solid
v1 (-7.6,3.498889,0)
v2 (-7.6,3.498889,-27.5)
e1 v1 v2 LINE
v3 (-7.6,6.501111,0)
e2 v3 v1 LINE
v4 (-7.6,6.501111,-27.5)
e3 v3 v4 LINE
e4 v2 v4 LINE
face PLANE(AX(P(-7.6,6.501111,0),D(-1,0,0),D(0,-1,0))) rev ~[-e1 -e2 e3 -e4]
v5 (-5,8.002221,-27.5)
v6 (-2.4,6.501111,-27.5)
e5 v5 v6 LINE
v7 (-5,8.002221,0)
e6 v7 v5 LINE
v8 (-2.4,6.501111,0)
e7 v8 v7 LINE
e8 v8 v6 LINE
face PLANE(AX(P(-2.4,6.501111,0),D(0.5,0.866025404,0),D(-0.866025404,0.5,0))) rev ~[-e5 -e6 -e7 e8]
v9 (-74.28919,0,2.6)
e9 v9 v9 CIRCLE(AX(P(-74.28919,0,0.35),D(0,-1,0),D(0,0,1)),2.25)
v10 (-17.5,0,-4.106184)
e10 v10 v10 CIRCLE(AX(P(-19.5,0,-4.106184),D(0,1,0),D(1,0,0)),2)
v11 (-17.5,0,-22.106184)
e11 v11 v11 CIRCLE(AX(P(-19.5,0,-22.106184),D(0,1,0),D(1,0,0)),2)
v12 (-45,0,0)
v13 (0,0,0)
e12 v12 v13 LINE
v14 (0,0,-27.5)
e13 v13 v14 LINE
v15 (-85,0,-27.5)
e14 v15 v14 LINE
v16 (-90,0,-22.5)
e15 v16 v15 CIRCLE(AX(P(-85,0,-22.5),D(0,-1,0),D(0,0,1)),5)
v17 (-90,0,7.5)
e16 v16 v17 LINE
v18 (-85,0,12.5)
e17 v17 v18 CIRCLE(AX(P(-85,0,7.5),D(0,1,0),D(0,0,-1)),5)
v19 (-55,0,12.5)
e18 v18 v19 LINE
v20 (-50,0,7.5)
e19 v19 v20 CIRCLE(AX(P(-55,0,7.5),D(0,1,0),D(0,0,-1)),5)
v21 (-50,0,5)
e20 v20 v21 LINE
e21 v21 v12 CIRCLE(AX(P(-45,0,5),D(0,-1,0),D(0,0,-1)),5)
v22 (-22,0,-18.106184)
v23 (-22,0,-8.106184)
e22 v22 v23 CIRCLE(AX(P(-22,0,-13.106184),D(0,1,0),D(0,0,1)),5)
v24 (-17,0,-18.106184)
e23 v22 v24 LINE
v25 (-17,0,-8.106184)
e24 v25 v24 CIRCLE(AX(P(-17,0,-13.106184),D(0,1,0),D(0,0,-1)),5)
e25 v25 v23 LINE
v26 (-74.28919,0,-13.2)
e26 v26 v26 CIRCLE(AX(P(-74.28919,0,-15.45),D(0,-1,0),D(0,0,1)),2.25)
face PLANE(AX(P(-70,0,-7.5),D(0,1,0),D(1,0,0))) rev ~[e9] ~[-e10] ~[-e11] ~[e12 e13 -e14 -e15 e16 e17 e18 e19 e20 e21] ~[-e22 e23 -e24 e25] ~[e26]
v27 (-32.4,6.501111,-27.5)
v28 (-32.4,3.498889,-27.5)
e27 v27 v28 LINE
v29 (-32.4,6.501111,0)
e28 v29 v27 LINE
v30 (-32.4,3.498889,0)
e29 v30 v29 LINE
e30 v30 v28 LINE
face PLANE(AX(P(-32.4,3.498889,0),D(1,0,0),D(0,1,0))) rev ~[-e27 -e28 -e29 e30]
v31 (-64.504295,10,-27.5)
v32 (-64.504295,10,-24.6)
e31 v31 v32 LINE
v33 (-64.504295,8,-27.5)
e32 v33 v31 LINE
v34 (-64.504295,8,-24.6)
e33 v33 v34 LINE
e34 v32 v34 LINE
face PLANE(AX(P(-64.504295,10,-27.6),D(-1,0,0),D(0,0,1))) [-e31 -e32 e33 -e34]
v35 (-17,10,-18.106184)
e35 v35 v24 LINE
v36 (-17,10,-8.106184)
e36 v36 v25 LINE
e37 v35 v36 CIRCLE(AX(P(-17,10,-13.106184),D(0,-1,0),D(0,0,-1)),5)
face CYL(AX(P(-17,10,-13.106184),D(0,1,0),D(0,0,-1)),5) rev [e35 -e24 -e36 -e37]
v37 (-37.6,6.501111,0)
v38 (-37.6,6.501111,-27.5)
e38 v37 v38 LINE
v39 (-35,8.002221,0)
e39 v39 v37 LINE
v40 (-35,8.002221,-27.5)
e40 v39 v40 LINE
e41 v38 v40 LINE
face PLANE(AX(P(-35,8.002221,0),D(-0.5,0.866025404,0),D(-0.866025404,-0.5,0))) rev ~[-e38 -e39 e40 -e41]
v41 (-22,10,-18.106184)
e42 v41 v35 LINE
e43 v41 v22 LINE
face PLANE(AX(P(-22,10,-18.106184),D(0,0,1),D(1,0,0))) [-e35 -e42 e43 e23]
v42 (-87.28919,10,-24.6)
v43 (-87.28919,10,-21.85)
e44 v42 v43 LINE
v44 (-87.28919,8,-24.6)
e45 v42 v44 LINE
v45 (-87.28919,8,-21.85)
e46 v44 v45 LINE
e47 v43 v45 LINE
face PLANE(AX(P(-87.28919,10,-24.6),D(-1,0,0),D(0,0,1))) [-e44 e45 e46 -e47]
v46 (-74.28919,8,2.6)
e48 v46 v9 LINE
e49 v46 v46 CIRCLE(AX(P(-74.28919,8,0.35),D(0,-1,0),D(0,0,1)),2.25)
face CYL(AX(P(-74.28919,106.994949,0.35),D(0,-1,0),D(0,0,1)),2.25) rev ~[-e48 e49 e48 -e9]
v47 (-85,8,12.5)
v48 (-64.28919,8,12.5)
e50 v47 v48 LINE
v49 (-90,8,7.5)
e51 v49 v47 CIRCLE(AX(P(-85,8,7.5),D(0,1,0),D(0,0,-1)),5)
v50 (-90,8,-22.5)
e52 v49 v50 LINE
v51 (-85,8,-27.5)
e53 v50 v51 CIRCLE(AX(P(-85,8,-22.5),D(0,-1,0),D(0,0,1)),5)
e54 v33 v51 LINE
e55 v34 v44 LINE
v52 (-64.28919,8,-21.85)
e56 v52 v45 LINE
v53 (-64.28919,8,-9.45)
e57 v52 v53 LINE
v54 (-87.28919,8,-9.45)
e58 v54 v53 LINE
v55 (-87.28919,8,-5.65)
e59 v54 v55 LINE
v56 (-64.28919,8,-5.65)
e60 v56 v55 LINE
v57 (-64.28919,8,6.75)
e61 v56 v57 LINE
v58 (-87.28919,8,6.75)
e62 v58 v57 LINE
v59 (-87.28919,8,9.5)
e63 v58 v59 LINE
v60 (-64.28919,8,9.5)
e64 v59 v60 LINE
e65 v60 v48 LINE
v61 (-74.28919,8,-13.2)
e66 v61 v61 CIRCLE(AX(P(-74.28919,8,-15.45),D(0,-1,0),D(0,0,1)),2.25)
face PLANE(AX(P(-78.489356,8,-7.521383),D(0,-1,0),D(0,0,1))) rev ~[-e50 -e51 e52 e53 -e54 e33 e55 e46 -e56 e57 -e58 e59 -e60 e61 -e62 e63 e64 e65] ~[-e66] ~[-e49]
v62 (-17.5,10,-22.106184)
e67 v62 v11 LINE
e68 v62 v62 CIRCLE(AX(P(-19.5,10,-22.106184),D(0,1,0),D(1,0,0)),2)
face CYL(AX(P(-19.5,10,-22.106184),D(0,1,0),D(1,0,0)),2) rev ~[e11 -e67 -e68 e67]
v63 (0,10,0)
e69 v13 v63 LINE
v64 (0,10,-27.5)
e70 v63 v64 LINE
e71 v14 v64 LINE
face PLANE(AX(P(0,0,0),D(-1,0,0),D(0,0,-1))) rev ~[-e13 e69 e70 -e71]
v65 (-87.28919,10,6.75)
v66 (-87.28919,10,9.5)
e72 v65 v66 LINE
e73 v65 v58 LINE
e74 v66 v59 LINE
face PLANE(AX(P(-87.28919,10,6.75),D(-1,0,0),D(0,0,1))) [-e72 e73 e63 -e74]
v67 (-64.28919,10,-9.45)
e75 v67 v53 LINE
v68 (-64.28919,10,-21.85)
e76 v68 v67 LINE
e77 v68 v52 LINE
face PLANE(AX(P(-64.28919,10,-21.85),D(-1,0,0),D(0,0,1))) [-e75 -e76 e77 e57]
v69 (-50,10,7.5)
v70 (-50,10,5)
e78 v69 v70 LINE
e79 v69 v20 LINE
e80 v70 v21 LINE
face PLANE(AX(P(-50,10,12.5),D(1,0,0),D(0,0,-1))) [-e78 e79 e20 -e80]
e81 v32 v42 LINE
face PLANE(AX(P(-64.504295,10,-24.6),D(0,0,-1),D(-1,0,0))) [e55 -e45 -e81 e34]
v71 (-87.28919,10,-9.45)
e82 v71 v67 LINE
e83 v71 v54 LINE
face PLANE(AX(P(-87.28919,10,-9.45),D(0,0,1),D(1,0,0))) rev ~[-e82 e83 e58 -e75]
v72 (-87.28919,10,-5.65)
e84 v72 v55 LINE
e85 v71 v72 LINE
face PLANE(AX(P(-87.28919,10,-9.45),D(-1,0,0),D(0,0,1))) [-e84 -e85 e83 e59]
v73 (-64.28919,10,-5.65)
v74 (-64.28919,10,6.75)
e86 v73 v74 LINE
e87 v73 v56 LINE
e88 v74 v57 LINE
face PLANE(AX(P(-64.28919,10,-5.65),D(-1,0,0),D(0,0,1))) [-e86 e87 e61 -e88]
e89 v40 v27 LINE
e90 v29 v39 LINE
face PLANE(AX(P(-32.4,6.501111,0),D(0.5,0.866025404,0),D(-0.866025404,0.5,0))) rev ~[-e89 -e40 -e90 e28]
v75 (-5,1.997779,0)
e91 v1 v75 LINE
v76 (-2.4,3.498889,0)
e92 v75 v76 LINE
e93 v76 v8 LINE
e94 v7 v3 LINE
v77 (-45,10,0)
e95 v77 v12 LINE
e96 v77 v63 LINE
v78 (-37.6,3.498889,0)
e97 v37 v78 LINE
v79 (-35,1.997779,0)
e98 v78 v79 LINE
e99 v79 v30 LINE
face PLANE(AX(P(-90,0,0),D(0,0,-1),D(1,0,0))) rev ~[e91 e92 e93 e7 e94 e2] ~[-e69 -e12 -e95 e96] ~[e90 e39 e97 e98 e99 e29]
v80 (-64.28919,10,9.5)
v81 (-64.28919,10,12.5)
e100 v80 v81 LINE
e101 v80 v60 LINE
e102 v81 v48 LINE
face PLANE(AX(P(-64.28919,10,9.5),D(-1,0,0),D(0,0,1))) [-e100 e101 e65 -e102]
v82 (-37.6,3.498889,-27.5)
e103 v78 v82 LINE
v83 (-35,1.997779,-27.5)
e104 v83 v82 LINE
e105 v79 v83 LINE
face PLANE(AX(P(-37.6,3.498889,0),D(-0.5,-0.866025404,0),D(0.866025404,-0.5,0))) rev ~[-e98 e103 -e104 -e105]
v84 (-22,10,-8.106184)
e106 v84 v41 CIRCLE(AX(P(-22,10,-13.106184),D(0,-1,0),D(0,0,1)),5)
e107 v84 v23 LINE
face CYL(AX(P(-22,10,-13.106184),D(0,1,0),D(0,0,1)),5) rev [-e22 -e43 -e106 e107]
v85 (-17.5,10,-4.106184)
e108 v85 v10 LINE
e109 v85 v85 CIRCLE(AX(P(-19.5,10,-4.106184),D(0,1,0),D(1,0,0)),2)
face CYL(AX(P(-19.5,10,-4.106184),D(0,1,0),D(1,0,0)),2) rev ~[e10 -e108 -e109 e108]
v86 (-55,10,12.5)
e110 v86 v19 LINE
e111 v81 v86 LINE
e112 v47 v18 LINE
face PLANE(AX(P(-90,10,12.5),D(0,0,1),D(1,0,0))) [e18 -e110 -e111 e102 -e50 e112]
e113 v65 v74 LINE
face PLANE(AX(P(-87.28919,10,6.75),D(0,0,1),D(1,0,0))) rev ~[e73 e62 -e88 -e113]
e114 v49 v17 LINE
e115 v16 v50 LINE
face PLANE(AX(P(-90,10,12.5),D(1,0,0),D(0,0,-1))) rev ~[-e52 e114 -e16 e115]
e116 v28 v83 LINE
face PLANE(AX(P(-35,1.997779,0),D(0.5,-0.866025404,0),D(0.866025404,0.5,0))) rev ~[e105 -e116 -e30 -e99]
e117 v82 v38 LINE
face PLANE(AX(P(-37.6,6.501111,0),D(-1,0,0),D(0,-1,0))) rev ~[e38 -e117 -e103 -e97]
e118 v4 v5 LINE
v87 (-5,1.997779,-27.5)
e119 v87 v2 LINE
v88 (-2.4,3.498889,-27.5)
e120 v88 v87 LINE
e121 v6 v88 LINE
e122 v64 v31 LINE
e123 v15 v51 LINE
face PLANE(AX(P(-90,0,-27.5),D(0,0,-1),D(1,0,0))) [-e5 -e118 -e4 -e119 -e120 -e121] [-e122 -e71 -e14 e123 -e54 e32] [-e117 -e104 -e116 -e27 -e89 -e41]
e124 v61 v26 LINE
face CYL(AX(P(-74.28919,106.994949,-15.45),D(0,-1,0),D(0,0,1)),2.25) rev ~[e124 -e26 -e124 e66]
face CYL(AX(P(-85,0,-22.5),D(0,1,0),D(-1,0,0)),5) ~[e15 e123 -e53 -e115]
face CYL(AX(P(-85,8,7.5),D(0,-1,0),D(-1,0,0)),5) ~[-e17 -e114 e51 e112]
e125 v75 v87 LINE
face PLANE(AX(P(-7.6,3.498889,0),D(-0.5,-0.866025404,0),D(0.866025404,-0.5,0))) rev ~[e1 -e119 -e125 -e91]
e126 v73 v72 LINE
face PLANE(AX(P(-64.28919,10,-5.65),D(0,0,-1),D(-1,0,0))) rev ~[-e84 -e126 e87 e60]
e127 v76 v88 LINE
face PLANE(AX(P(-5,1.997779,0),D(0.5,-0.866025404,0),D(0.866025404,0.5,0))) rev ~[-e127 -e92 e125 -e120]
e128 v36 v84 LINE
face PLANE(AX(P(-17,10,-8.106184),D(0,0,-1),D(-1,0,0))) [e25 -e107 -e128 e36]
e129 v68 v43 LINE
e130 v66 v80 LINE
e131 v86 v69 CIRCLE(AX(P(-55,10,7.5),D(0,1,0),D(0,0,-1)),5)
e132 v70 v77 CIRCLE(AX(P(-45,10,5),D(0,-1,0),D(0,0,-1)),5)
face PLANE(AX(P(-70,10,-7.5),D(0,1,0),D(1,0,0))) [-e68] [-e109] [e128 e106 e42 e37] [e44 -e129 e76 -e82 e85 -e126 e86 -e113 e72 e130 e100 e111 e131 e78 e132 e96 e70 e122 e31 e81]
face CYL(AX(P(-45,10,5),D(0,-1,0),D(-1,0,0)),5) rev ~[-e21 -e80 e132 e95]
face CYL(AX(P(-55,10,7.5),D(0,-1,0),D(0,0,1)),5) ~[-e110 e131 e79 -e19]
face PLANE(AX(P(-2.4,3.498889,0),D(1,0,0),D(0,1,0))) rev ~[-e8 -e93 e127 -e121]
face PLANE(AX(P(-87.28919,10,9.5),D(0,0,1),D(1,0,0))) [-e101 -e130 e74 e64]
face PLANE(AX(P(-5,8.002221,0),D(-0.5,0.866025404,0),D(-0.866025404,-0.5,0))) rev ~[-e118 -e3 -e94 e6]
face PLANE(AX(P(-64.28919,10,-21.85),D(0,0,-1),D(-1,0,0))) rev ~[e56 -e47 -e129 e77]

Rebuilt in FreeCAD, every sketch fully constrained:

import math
import FreeCAD as App
import Part
import Sketcher
from FreeCAD import Vector
Q = App.Units.Quantity


def edges_at(feature, points):
    """Names of the edges that pass closest to the given points."""
    edges = feature.Shape.Edges
    near = lambda p: min(range(len(edges)), key=lambda i: edges[i].distToShape(Part.Vertex(*p))[0])
    return sorted({f"Edge{near(p) + 1}" for p in points})


def add_polygon(sketch, points):
    """Adds a closed chain of lines whose ends are joined by coincident constraints."""
    first, n = sketch.GeometryCount, len(points)
    for a, b in zip(points, points[1:] + points[:1]):
        sketch.addGeometry(Part.LineSegment(App.Vector(*a, 0), App.Vector(*b, 0)), False)
    for i in range(n):
        sketch.addConstraint(Sketcher.Constraint("Coincident", first + i, 2, first + (i + 1) % n, 1))

doc = App.newDocument("Part")
params = doc.addObject("Spreadsheet::Sheet", "Params")
for row, (alias, value) in enumerate([
    ("sketch1_width", "90 mm"),
    ("sketch1_height", "27.5 mm"),
    ("pad1_length", "10 mm"),
    ("sketch3_width", "40 mm"),
    ("pad2_length", "10 mm"),
    ("sketch4_width", "23 mm"),
    ("sketch4_height", "3 mm"),
    ("sketch4_height2", "40.1 mm"),
    ("sketch4_height3", "12.4 mm"),
    ("sketch4_height4", "3.8 mm"),
    ("pocket2_length", "2 mm"),
    ("sketch5_diameter", "4.5 mm"),
    ("hole_diameter", "4.5 mm"),
    ("fillet_radius", "5 mm"),
    ("sketch6_diameter", "4 mm"),
    ("sketch6_radius", "5 mm"),
    ("sketch6_width", "5 mm"),
], start=1):
    params.set(f"A{row}", alias)
    params.set(f"B{row}", "=" + value)
    params.setAlias(f"B{row}", alias)

body = doc.addObject("PartDesign::Body", "Body")

# Sketch on XZ plane
sketch1 = doc.addObject("Sketcher::SketchObject", "Sketch")
body.addObject(sketch1)
sketch1.AttachmentSupport = (doc.XZ_Plane, [""])
sketch1.MapMode = "FlatFace"
add_polygon(sketch1, [(-90, -27.5), (-90, 0), (0, 0), (0, -27.5)])  # lines 0-3
sketch1.addConstraint([
    Sketcher.Constraint("Vertical", 0),
    Sketcher.Constraint("Horizontal", 1),
    Sketcher.Constraint("Vertical", 2),
    Sketcher.Constraint("Horizontal", 3),
    Sketcher.Constraint("Coincident", 1, 2, -1, 1),
    Sketcher.Constraint("DistanceX", 1, 1, 1, 2, Q("90 mm")),
    Sketcher.Constraint("DistanceY", 0, 1, 0, 2, Q("27.5 mm")),
])
sketch1.setExpression("Constraints[9]", "Params.sketch1_width")
sketch1.setExpression("Constraints[10]", "Params.sketch1_height")
pad1 = doc.addObject("PartDesign::Pad", "Pad")
body.addObject(pad1)
pad1.Profile = sketch1
pad1.setExpression("Length", "Params.pad1_length")
pad1.Reversed = True

# Sketch on XY plane
sketch2 = doc.addObject("Sketcher::SketchObject", "Sketch001")
body.addObject(sketch2)
sketch2.AttachmentSupport = (doc.XY_Plane, [""])
sketch2.MapMode = "FlatFace"
add_polygon(sketch2, [(-32.4, 3.498889), (-32.4, 6.501111), (-35, 8.002221), (-37.6, 6.501111), (-37.6, 3.498889), (-35, 1.997779)])  # lines 0-5
add_polygon(sketch2, [(-2.4, 3.498889), (-2.4, 6.501111), (-5, 8.002221), (-7.6, 6.501111), (-7.6, 3.498889), (-5, 1.997779)])  # lines 6-11
sketch2.addConstraint([
    Sketcher.Constraint("Vertical", 0),
    Sketcher.Constraint("Vertical", 3),
    Sketcher.Constraint("Vertical", 6),
    Sketcher.Constraint("Vertical", 9),
    Sketcher.Constraint("Parallel", 1, 4),
    Sketcher.Constraint("Parallel", 2, 5),
    Sketcher.Constraint("Parallel", 4, 7),
    Sketcher.Constraint("Parallel", 5, 8),
    Sketcher.Constraint("Parallel", 7, 10),
    Sketcher.Constraint("Parallel", 8, 11),
    Sketcher.Constraint("Horizontal", 0, 2, 2, 2),
    Sketcher.Constraint("Horizontal", 3, 2, 5, 2),
    Sketcher.Constraint("Horizontal", 2, 2, 6, 2),
    Sketcher.Constraint("Horizontal", 1, 2, 7, 2),
    Sketcher.Constraint("Horizontal", 6, 2, 8, 2),
    Sketcher.Constraint("Horizontal", 5, 2, 9, 2),
    Sketcher.Constraint("Horizontal", 4, 2, 10, 2),
    Sketcher.Constraint("Vertical", 1, 2, 4, 2),
    Sketcher.Constraint("Angle", 1, Q("150 deg")),
    Sketcher.Constraint("DistanceX", 1, 2, -1, 1, Q("35 mm")),
    Sketcher.Constraint("DistanceX", 7, 2, -1, 1, Q("5 mm")),
    Sketcher.Constraint("DistanceX", 0, 2, -1, 1, Q("32.4 mm")),
    Sketcher.Constraint("DistanceY", 0, 1, 0, 2, Q("3.002221 mm")),
    Sketcher.Constraint("DistanceY", -1, 1, 0, 2, Q("6.501111 mm")),
])
pocket1 = doc.addObject("PartDesign::Pocket", "Pocket")
body.addObject(pocket1)
pocket1.Profile = sketch2
pocket1.Type = "ThroughAll"

# Sketch on XZ plane
sketch3 = doc.addObject("Sketcher::SketchObject", "Sketch002")
body.addObject(sketch3)
sketch3.AttachmentSupport = (doc.XZ_Plane, [""])
sketch3.MapMode = "FlatFace"
sketch3.AttachmentOffset = App.Placement(Vector(0, 0, -10), App.Rotation())
add_polygon(sketch3, [(-90, -27.5), (-90, 12.5), (-50, 12.5), (-50, -27.5)])  # lines 0-3
sketch3.addConstraint([
    Sketcher.Constraint("Vertical", 0),
    Sketcher.Constraint("Horizontal", 1),
    Sketcher.Constraint("Vertical", 2),
    Sketcher.Constraint("Horizontal", 3),
    Sketcher.Constraint("Equal", 3, 0),
    Sketcher.Constraint("DistanceX", 1, 1, 1, 2, Q("40 mm")),
    Sketcher.Constraint("DistanceX", 0, 2, -1, 1, Q("90 mm")),
    Sketcher.Constraint("DistanceY", -1, 1, 0, 2, Q("12.5 mm")),
])
sketch3.setExpression("Constraints[9]", "Params.sketch3_width")
pad2 = doc.addObject("PartDesign::Pad", "Pad001")
body.addObject(pad2)
pad2.Profile = sketch3
pad2.setExpression("Length", "Params.pad2_length")

# Sketch on XZ plane
sketch4 = doc.addObject("Sketcher::SketchObject", "Sketch003")
body.addObject(sketch4)
sketch4.AttachmentSupport = (doc.XZ_Plane, [""])
sketch4.MapMode = "FlatFace"
sketch4.AttachmentOffset = App.Placement(Vector(0, 0, -10), App.Rotation())
add_polygon(sketch4, [(-64.504295, -27.6), (-94.841124, -27.6), (-94.841124, 12.5), (-64.28919, 12.5), (-64.28919, 9.5), (-87.28919, 9.5), (-87.28919, 6.75), (-64.28919, 6.75), (-64.28919, -5.65), (-87.28919, -5.65), (-87.28919, -9.45), (-64.28919, -9.45), (-64.28919, -21.85), (-87.28919, -21.85), (-87.28919, -24.6), (-64.504295, -24.6)])  # lines 0-15
sketch4.addConstraint([
    Sketcher.Constraint("Horizontal", 0),
    Sketcher.Constraint("Vertical", 1),
    Sketcher.Constraint("Horizontal", 2),
    Sketcher.Constraint("Vertical", 3),
    Sketcher.Constraint("Horizontal", 4),
    Sketcher.Constraint("Vertical", 5),
    Sketcher.Constraint("Horizontal", 6),
    Sketcher.Constraint("Vertical", 7),
    Sketcher.Constraint("Horizontal", 8),
    Sketcher.Constraint("Vertical", 9),
    Sketcher.Constraint("Horizontal", 10),
    Sketcher.Constraint("Vertical", 11),
    Sketcher.Constraint("Horizontal", 12),
    Sketcher.Constraint("Vertical", 13),
    Sketcher.Constraint("Horizontal", 14),
    Sketcher.Constraint("Vertical", 15),
    Sketcher.Constraint("Vertical", 3, 2, 6, 2),
    Sketcher.Constraint("Vertical", 5, 2, 8, 2),
    Sketcher.Constraint("Vertical", 7, 2, 10, 2),
    Sketcher.Constraint("Vertical", 9, 2, 12, 2),
    Sketcher.Constraint("Equal", 7, 11),
    Sketcher.Constraint("Equal", 5, 13),
    Sketcher.Constraint("Equal", 3, 15),
    Sketcher.Constraint("DistanceX", 4, 2, 4, 1, Q("23 mm")),
    Sketcher.Constraint("DistanceY", 3, 2, 3, 1, Q("3 mm")),
    Sketcher.Constraint("DistanceY", 1, 1, 1, 2, Q("40.1 mm")),
    Sketcher.Constraint("DistanceY", 7, 2, 7, 1, Q("12.4 mm")),
    Sketcher.Constraint("DistanceY", 9, 2, 9, 1, Q("3.8 mm")),
    Sketcher.Constraint("DistanceY", 0, 2, -1, 1, Q("27.6 mm")),
    Sketcher.Constraint("DistanceX", 0, 2, 0, 1, Q("30.336829 mm")),
    Sketcher.Constraint("DistanceX", 2, 1, 2, 2, Q("30.551934 mm")),
    Sketcher.Constraint("DistanceX", 2, 2, -1, 1, Q("64.28919 mm")),
])
sketch4.setExpression("Constraints[39]", "Params.sketch4_width")
sketch4.setExpression("Constraints[40]", "Params.sketch4_height")
sketch4.setExpression("Constraints[41]", "Params.sketch4_height2")
sketch4.setExpression("Constraints[42]", "Params.sketch4_height3")
sketch4.setExpression("Constraints[43]", "Params.sketch4_height4")
pocket2 = doc.addObject("PartDesign::Pocket", "Pocket001")
body.addObject(pocket2)
pocket2.Profile = sketch4
pocket2.setExpression("Length", "Params.pocket2_length")
pocket2.Reversed = True

# Sketch on XZ plane
sketch5 = doc.addObject("Sketcher::SketchObject", "Sketch004")
body.addObject(sketch5)
sketch5.AttachmentSupport = (doc.XZ_Plane, [""])
sketch5.MapMode = "FlatFace"
sketch5.AttachmentOffset = App.Placement(Vector(0, 0, -8), App.Rotation())
sketch5.addGeometry([
    Part.Circle(Vector(-74.28919, 0.35, 0), Vector(0, 0, 1), 2.25),
    Part.Circle(Vector(-74.28919, -15.45, 0), Vector(0, 0, 1), 2.25),
], False)
sketch5.addConstraint([
    Sketcher.Constraint("Equal", 0, 1),
    Sketcher.Constraint("Vertical", 0, 3, 1, 3),
    Sketcher.Constraint("Diameter", 0, Q("4.5 mm")),
    Sketcher.Constraint("DistanceY", 1, 3, 0, 3, Q("15.8 mm")),
    Sketcher.Constraint("DistanceY", -1, 1, 0, 3, Q("0.35 mm")),
    Sketcher.Constraint("DistanceX", 0, 3, -1, 1, Q("74.28919 mm")),
])
sketch5.setExpression("Constraints[2]", "Params.sketch5_diameter")
doc.recompute()
hole = doc.addObject("PartDesign::Hole", "Hole")
body.addObject(hole)
hole.Profile = sketch5
hole.ThreadType = "None"
hole.setExpression("Diameter", "Params.hole_diameter")
hole.DepthType = "ThroughAll"
hole.Reversed = True
doc.recompute()

fillet = doc.addObject("PartDesign::Fillet", "Fillet")
body.addObject(fillet)
fillet.Base = (hole, edges_at(hole, [
    (-90, 4, 12.5),
    (-50, 5, 0),
    (-50, 5, 12.5),
    (-90, 4, -27.5),
]))
fillet.setExpression("Radius", "Params.fillet_radius")

# Sketch on XZ plane
sketch6 = doc.addObject("Sketcher::SketchObject", "Sketch005")
body.addObject(sketch6)
sketch6.AttachmentSupport = (doc.XZ_Plane, [""])
sketch6.MapMode = "FlatFace"
sketch6.AttachmentOffset = App.Placement(Vector(0, 0, -10), App.Rotation())
sketch6.addGeometry([
    Part.Circle(Vector(-19.5, -4.106184, 0), Vector(0, 0, 1), 2),  # 0
    Part.Circle(Vector(-19.5, -22.106184, 0), Vector(0, 0, 1), 2),  # 1
    Part.LineSegment(Vector(-22, -8.106184, 0), Vector(-17, -8.106184, 0)),  # 2
    Part.ArcOfCircle(Part.Circle(Vector(-17, -13.106184, 0), Vector(0, 0, 1), 5), math.radians(-90), math.radians(90)),  # 3
    Part.LineSegment(Vector(-17, -18.106184, 0), Vector(-22, -18.106184, 0)),  # 4
    Part.ArcOfCircle(Part.Circle(Vector(-22, -13.106184, 0), Vector(0, 0, 1), 5), math.radians(90), math.radians(270)),  # 5
], False)
sketch6.addConstraint([
    Sketcher.Constraint("Tangent", 2, 2, 3, 2),
    Sketcher.Constraint("Tangent", 3, 1, 4, 1),
    Sketcher.Constraint("Tangent", 4, 2, 5, 2),
    Sketcher.Constraint("Tangent", 5, 1, 2, 1),
    Sketcher.Constraint("Horizontal", 2),
    Sketcher.Constraint("Horizontal", 4),
    Sketcher.Constraint("Equal", 0, 1),
    Sketcher.Constraint("Vertical", 0, 3, 1, 3),
    Sketcher.Constraint("Diameter", 0, Q("4 mm")),
    Sketcher.Constraint("Radius", 3, Q("5 mm")),
    Sketcher.Constraint("DistanceX", 2, 1, 2, 2, Q("5 mm")),
    Sketcher.Constraint("DistanceX", 3, 3, -1, 1, Q("17 mm")),
    Sketcher.Constraint("DistanceY", 1, 3, 0, 3, Q("18 mm")),
    Sketcher.Constraint("DistanceY", 3, 3, 0, 3, Q("9 mm")),
    Sketcher.Constraint("DistanceX", 0, 3, -1, 1, Q("19.5 mm")),
    Sketcher.Constraint("DistanceY", 0, 3, -1, 1, Q("4.106184 mm")),
])
sketch6.setExpression("Constraints[8]", "Params.sketch6_diameter")
sketch6.setExpression("Constraints[9]", "Params.sketch6_radius")
sketch6.setExpression("Constraints[10]", "Params.sketch6_width")
pocket3 = doc.addObject("PartDesign::Pocket", "Pocket002")
body.addObject(pocket3)
pocket3.Profile = sketch6
pocket3.Type = "ThroughAll"
pocket3.Reversed = True

doc.recompute()
